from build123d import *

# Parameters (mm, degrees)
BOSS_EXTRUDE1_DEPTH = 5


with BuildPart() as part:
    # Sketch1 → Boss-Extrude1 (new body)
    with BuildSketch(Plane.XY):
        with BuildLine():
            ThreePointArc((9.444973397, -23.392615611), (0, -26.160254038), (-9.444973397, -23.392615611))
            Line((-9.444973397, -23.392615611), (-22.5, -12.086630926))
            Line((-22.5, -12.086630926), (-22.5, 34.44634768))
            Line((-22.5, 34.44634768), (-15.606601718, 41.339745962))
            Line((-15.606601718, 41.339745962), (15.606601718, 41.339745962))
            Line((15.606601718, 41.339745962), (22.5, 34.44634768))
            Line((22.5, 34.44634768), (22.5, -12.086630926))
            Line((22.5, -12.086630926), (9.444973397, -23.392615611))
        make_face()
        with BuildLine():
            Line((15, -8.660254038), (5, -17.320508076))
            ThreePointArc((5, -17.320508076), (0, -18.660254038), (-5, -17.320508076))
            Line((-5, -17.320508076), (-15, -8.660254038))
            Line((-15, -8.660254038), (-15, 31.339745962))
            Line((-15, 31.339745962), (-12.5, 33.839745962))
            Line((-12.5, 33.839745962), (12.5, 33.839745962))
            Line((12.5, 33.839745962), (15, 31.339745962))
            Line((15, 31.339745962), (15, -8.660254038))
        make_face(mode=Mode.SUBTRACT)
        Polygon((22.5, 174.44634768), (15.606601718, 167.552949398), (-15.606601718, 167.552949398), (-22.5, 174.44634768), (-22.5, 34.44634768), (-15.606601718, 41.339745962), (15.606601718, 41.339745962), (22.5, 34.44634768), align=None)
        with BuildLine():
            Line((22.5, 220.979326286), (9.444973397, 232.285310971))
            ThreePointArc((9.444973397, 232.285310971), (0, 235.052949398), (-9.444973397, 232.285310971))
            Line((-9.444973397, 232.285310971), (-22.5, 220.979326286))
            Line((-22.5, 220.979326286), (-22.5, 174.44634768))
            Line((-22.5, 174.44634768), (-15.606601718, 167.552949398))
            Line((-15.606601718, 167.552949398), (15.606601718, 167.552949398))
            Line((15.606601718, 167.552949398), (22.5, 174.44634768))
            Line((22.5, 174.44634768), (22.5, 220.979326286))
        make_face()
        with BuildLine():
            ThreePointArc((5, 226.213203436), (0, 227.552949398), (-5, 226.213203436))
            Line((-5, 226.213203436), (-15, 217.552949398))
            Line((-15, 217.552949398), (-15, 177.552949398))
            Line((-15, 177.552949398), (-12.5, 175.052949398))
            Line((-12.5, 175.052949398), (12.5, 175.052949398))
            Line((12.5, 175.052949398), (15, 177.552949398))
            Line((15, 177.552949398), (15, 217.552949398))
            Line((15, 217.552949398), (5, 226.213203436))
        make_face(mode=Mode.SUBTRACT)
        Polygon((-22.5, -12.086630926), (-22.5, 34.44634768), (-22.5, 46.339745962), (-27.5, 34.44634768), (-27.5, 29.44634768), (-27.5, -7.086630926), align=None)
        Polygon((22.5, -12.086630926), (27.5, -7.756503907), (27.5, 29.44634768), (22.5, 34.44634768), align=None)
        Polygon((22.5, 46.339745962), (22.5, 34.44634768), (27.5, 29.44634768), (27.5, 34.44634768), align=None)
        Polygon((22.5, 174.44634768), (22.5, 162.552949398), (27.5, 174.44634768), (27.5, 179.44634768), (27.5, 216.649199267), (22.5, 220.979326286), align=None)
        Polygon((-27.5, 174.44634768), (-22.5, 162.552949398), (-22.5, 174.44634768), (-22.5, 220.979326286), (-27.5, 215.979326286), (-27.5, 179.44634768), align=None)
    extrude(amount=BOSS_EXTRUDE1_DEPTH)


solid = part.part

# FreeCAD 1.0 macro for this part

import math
import FreeCAD as App
import Part
import Sketcher
Q = App.Units.Quantity

doc = App.newDocument("Part")
body = doc.addObject("PartDesign::Body", "Body")

# Sketch on XY plane
sketch1 = body.newObject("Sketcher::SketchObject", "Sketch")
sketch1.AttachmentSupport = (doc.getObject("XY_Plane"), [""])
sketch1.MapMode = "FlatFace"
sketch1.addGeometry(Part.ArcOfCircle(Part.Circle(App.Vector(0, -8.660254, 0), App.Vector(0, 0, 1), 17.5), math.radians(-122.664088), math.radians(-57.335912)), False)
sketch1.addGeometry(Part.LineSegment(App.Vector(9.444973, -23.392616, 0), App.Vector(22.5, -12.086631, 0)), False)
sketch1.addGeometry(Part.LineSegment(App.Vector(22.5, -12.086631, 0), App.Vector(27.5, -7.756504, 0)), False)
sketch1.addGeometry(Part.LineSegment(App.Vector(27.5, -7.756504, 0), App.Vector(27.5, 34.446348, 0)), False)
sketch1.addGeometry(Part.LineSegment(App.Vector(27.5, 34.446348, 0), App.Vector(22.5, 46.339746, 0)), False)
sketch1.addGeometry(Part.LineSegment(App.Vector(22.5, 46.339746, 0), App.Vector(22.5, 162.552949, 0)), False)
sketch1.addGeometry(Part.LineSegment(App.Vector(22.5, 162.552949, 0), App.Vector(27.5, 174.446348, 0)), False)
sketch1.addGeometry(Part.LineSegment(App.Vector(27.5, 174.446348, 0), App.Vector(27.5, 216.649199, 0)), False)
sketch1.addGeometry(Part.LineSegment(App.Vector(27.5, 216.649199, 0), App.Vector(22.5, 220.979326, 0)), False)
sketch1.addGeometry(Part.LineSegment(App.Vector(22.5, 220.979326, 0), App.Vector(9.444973, 232.285311, 0)), False)
sketch1.addGeometry(Part.ArcOfCircle(Part.Circle(App.Vector(0, 217.552949, 0), App.Vector(0, 0, 1), 17.5), math.radians(57.335912), math.radians(122.664088)), False)
sketch1.addGeometry(Part.LineSegment(App.Vector(-9.444973, 232.285311, 0), App.Vector(-22.5, 220.979326, 0)), False)
sketch1.addGeometry(Part.LineSegment(App.Vector(-22.5, 220.979326, 0), App.Vector(-27.5, 215.979326, 0)), False)
sketch1.addGeometry(Part.LineSegment(App.Vector(-27.5, 215.979326, 0), App.Vector(-27.5, 174.446348, 0)), False)
sketch1.addGeometry(Part.LineSegment(App.Vector(-27.5, 174.446348, 0), App.Vector(-22.5, 162.552949, 0)), False)
sketch1.addGeometry(Part.LineSegment(App.Vector(-22.5, 162.552949, 0), App.Vector(-22.5, 46.339746, 0)), False)
sketch1.addGeometry(Part.LineSegment(App.Vector(-22.5, 46.339746, 0), App.Vector(-27.5, 34.446348, 0)), False)
sketch1.addGeometry(Part.LineSegment(App.Vector(-27.5, 34.446348, 0), App.Vector(-27.5, -7.086631, 0)), False)
sketch1.addGeometry(Part.LineSegment(App.Vector(-27.5, -7.086631, 0), App.Vector(-22.5, -12.086631, 0)), False)
sketch1.addGeometry(Part.LineSegment(App.Vector(-22.5, -12.086631, 0), App.Vector(-9.444973, -23.392616, 0)), False)
sketch1.addGeometry(Part.LineSegment(App.Vector(15, -8.660254, 0), App.Vector(5, -17.320508, 0)), False)
sketch1.addGeometry(Part.ArcOfCircle(Part.Circle(App.Vector(0, -8.660254, 0), App.Vector(0, 0, 1), 10), math.radians(-120), math.radians(-60)), False)
sketch1.addGeometry(Part.LineSegment(App.Vector(-5, -17.320508, 0), App.Vector(-15, -8.660254, 0)), False)
sketch1.addGeometry(Part.LineSegment(App.Vector(-15, -8.660254, 0), App.Vector(-15, 31.339746, 0)), False)
sketch1.addGeometry(Part.LineSegment(App.Vector(-15, 31.339746, 0), App.Vector(-12.5, 33.839746, 0)), False)
sketch1.addGeometry(Part.LineSegment(App.Vector(-12.5, 33.839746, 0), App.Vector(12.5, 33.839746, 0)), False)
sketch1.addGeometry(Part.LineSegment(App.Vector(12.5, 33.839746, 0), App.Vector(15, 31.339746, 0)), False)
sketch1.addGeometry(Part.LineSegment(App.Vector(15, 31.339746, 0), App.Vector(15, -8.660254, 0)), False)
sketch1.addGeometry(Part.LineSegment(App.Vector(5, 226.213203, 0), App.Vector(15, 217.552949, 0)), False)
sketch1.addGeometry(Part.LineSegment(App.Vector(15, 217.552949, 0), App.Vector(15, 177.552949, 0)), False)
sketch1.addGeometry(Part.LineSegment(App.Vector(15, 177.552949, 0), App.Vector(12.5, 175.052949, 0)), False)
sketch1.addGeometry(Part.LineSegment(App.Vector(12.5, 175.052949, 0), App.Vector(-12.5, 175.052949, 0)), False)
sketch1.addGeometry(Part.LineSegment(App.Vector(-12.5, 175.052949, 0), App.Vector(-15, 177.552949, 0)), False)
sketch1.addGeometry(Part.LineSegment(App.Vector(-15, 177.552949, 0), App.Vector(-15, 217.552949, 0)), False)
sketch1.addGeometry(Part.LineSegment(App.Vector(-15, 217.552949, 0), App.Vector(-5, 226.213203, 0)), False)
sketch1.addGeometry(Part.ArcOfCircle(Part.Circle(App.Vector(0, 217.552949, 0), App.Vector(0, 0, 1), 10), math.radians(60), math.radians(120)), False)
sketch1.addConstraint(Sketcher.Constraint("Coincident", 0, 2, 1, 1))
sketch1.addConstraint(Sketcher.Constraint("Coincident", 1, 2, 2, 1))
sketch1.addConstraint(Sketcher.Constraint("Coincident", 2, 2, 3, 1))
sketch1.addConstraint(Sketcher.Constraint("Coincident", 3, 2, 4, 1))
sketch1.addConstraint(Sketcher.Constraint("Coincident", 4, 2, 5, 1))
sketch1.addConstraint(Sketcher.Constraint("Coincident", 5, 2, 6, 1))
sketch1.addConstraint(Sketcher.Constraint("Coincident", 6, 2, 7, 1))
sketch1.addConstraint(Sketcher.Constraint("Coincident", 7, 2, 8, 1))
sketch1.addConstraint(Sketcher.Constraint("Coincident", 8, 2, 9, 1))
sketch1.addConstraint(Sketcher.Constraint("Coincident", 9, 2, 10, 1))
sketch1.addConstraint(Sketcher.Constraint("Coincident", 10, 2, 11, 1))
sketch1.addConstraint(Sketcher.Constraint("Coincident", 11, 2, 12, 1))
sketch1.addConstraint(Sketcher.Constraint("Coincident", 12, 2, 13, 1))
sketch1.addConstraint(Sketcher.Constraint("Coincident", 13, 2, 14, 1))
sketch1.addConstraint(Sketcher.Constraint("Coincident", 14, 2, 15, 1))
sketch1.addConstraint(Sketcher.Constraint("Coincident", 15, 2, 16, 1))
sketch1.addConstraint(Sketcher.Constraint("Coincident", 16, 2, 17, 1))
sketch1.addConstraint(Sketcher.Constraint("Coincident", 17, 2, 18, 1))
sketch1.addConstraint(Sketcher.Constraint("Coincident", 18, 2, 19, 1))
sketch1.addConstraint(Sketcher.Constraint("Coincident", 19, 2, 0, 1))
sketch1.addConstraint(Sketcher.Constraint("Coincident", 20, 2, 21, 2))
sketch1.addConstraint(Sketcher.Constraint("Coincident", 21, 1, 22, 1))
sketch1.addConstraint(Sketcher.Constraint("Coincident", 22, 2, 23, 1))
sketch1.addConstraint(Sketcher.Constraint("Coincident", 23, 2, 24, 1))
sketch1.addConstraint(Sketcher.Constraint("Coincident", 24, 2, 25, 1))
sketch1.addConstraint(Sketcher.Constraint("Coincident", 25, 2, 26, 1))
sketch1.addConstraint(Sketcher.Constraint("Coincident", 26, 2, 27, 1))
sketch1.addConstraint(Sketcher.Constraint("Coincident", 27, 2, 20, 1))
sketch1.addConstraint(Sketcher.Constraint("Coincident", 28, 2, 29, 1))
sketch1.addConstraint(Sketcher.Constraint("Coincident", 29, 2, 30, 1))
sketch1.addConstraint(Sketcher.Constraint("Coincident", 30, 2, 31, 1))
sketch1.addConstraint(Sketcher.Constraint("Coincident", 31, 2, 32, 1))
sketch1.addConstraint(Sketcher.Constraint("Coincident", 32, 2, 33, 1))
sketch1.addConstraint(Sketcher.Constraint("Coincident", 33, 2, 34, 1))
sketch1.addConstraint(Sketcher.Constraint("Coincident", 34, 2, 35, 2))
sketch1.addConstraint(Sketcher.Constraint("Coincident", 35, 1, 28, 1))
sketch1.addConstraint(Sketcher.Constraint("Vertical", 3))
sketch1.addConstraint(Sketcher.Constraint("Vertical", 5))
sketch1.addConstraint(Sketcher.Constraint("Vertical", 7))
sketch1.addConstraint(Sketcher.Constraint("Vertical", 13))
sketch1.addConstraint(Sketcher.Constraint("Vertical", 15))
sketch1.addConstraint(Sketcher.Constraint("Vertical", 17))
sketch1.addConstraint(Sketcher.Constraint("Vertical", 23))
sketch1.addConstraint(Sketcher.Constraint("Horizontal", 25))
sketch1.addConstraint(Sketcher.Constraint("Vertical", 27))
sketch1.addConstraint(Sketcher.Constraint("Vertical", 29))
sketch1.addConstraint(Sketcher.Constraint("Horizontal", 31))
sketch1.addConstraint(Sketcher.Constraint("Vertical", 33))
sketch1.addConstraint(Sketcher.Constraint("Coincident", 21, 3, 0, 3))
sketch1.addConstraint(Sketcher.Constraint("Coincident", 35, 3, 10, 3))
sketch1.addConstraint(Sketcher.Constraint("Equal", 0, 10))
sketch1.addConstraint(Sketcher.Constraint("Equal", 21, 35))
sketch1.addConstraint(Sketcher.Constraint("Symmetric", 9, 2, 10, 2, -2))
sketch1.addConstraint(Sketcher.Constraint("Symmetric", 8, 2, 11, 2, -2))
sketch1.addConstraint(Sketcher.Constraint("Symmetric", 6, 2, 13, 2, -2))
sketch1.addConstraint(Sketcher.Constraint("Symmetric", 5, 2, 14, 2, -2))
sketch1.addConstraint(Sketcher.Constraint("Symmetric", 3, 2, 16, 2, -2))
sketch1.addConstraint(Sketcher.Constraint("Symmetric", 1, 2, 18, 2, -2))
sketch1.addConstraint(Sketcher.Constraint("Symmetric", 0, 2, 19, 2, -2))
sketch1.addConstraint(Sketcher.Constraint("Symmetric", 23, 2, 26, 2, -2))
sketch1.addConstraint(Sketcher.Constraint("Symmetric", 29, 2, 32, 2, -2))
sketch1.addConstraint(Sketcher.Constraint("Parallel", 1, 2))
sketch1.addConstraint(Sketcher.Constraint("Parallel", 8, 9))
sketch1.addConstraint(Sketcher.Constraint("Parallel", 2, 11))
sketch1.addConstraint(Sketcher.Constraint("Parallel", 4, 14))
sketch1.addConstraint(Sketcher.Constraint("Parallel", 6, 16))
sketch1.addConstraint(Sketcher.Constraint("Perpendicular", 12, 18))
sketch1.addConstraint(Sketcher.Constraint("Parallel", 11, 20))
sketch1.addConstraint(Sketcher.Constraint("Parallel", 19, 22))
sketch1.addConstraint(Sketcher.Constraint("Perpendicular", 18, 24))
sketch1.addConstraint(Sketcher.Constraint("Perpendicular", 24, 26))
sketch1.addConstraint(Sketcher.Constraint("Parallel", 22, 28))
sketch1.addConstraint(Sketcher.Constraint("Perpendicular", 26, 30))
sketch1.addConstraint(Sketcher.Constraint("Perpendicular", 30, 32))
sketch1.addConstraint(Sketcher.Constraint("Parallel", 20, 34))
sketch1.addConstraint(Sketcher.Constraint("Horizontal", 20, 2, 21, 1))
sketch1.addConstraint(Sketcher.Constraint("Horizontal", 21, 3, 22, 2))
sketch1.addConstraint(Sketcher.Constraint("Horizontal", 35, 3, 28, 2))
sketch1.addConstraint(Sketcher.Constraint("Horizontal", 28, 2, 33, 2))
sketch1.addConstraint(Sketcher.Constraint("Vertical", 1, 2, 4, 2))
sketch1.addConstraint(Sketcher.Constraint("Vertical", 3, 2, 6, 2))
sketch1.addConstraint(Sketcher.Constraint("Vertical", 5, 2, 8, 2))
sketch1.addConstraint(Sketcher.Constraint("Vertical", 0, 2, 9, 2))
sketch1.addConstraint(Sketcher.Constraint("Vertical", 27, 2, 28, 2))
sketch1.addConstraint(Sketcher.Constraint("Vertical", 25, 2, 30, 2))
sketch1.addConstraint(Sketcher.Constraint("Vertical", 24, 2, 31, 2))
sketch1.addConstraint(Sketcher.Constraint("Equal", 3, 7))
sketch1.addConstraint(Sketcher.Constraint("Equal", 27, 29))
sketch1.addConstraint(Sketcher.Constraint("Radius", 21, Q("10 mm")))
sketch1.addConstraint(Sketcher.Constraint("Radius", 0, Q("17.5 mm")))
sketch1.addConstraint(Sketcher.Constraint("DistanceX", 25, 1, 25, 2, Q("25 mm")))
sketch1.addConstraint(Sketcher.Constraint("DistanceY", 23, 1, 23, 2, Q("40 mm")))
sketch1.addConstraint(Sketcher.Constraint("DistanceX", -1, 1, 20, 2, Q("5 mm")))
sketch1.addConstraint(Sketcher.Constraint("DistanceX", 22, 2, -1, 1, Q("15 mm")))
sketch1.addConstraint(Sketcher.Constraint("DistanceX", 1, 2, 2, 2, Q("5 mm")))
sketch1.addConstraint(Sketcher.Constraint("DistanceY", 21, 3, 4, 2, Q("55 mm")))
sketch1.addConstraint(Sketcher.Constraint("DistanceY", 3, 2, 6, 2, Q("140 mm")))
sketch1.addConstraint(Sketcher.Constraint("DistanceX", 11, 2, 8, 2, Q("45 mm")))
sketch1.addConstraint(Sketcher.Constraint("DistanceY", 3, 1, 3, 2, Q("42.202852 mm")))
sketch1.addConstraint(Sketcher.Constraint("DistanceY", -1, 1, 7, 2, Q("216.649199 mm")))
sketch1.addConstraint(Sketcher.Constraint("DistanceY", 21, 3, 3, 2, Q("43.106602 mm")))
pad1 = body.newObject("PartDesign::Pad", "Pad")
pad1.Profile = sketch1
pad1.Length = 5

doc.recompute()
